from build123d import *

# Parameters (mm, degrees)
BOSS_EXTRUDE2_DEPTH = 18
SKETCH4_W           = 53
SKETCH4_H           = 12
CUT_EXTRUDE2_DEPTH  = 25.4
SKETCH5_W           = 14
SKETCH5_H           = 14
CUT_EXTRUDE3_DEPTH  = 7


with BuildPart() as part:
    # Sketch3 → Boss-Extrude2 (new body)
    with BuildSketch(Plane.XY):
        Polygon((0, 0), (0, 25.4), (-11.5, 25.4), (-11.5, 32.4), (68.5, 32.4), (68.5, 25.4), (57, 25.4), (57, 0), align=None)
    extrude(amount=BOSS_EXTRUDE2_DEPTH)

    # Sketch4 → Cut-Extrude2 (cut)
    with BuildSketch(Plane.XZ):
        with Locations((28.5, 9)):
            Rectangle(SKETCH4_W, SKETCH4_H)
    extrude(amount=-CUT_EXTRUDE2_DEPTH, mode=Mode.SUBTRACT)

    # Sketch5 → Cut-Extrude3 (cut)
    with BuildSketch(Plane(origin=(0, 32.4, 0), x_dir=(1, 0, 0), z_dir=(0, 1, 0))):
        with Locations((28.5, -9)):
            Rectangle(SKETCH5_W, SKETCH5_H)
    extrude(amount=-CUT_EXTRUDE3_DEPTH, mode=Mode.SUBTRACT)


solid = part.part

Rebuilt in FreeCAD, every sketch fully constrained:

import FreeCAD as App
import Part
import Sketcher
from FreeCAD import Vector

doc = App.newDocument("Part")
body = doc.addObject("PartDesign::Body", "Body")

sketch1 = body.newObject("Sketcher::SketchObject", "Sketch")
sketch1.AttachmentSupport = (doc.getObject("XY_Plane"), [""])
sketch1.MapMode = "FlatFace"
sketch1.addGeometry([
    Part.LineSegment(Vector(0, 25, 0), Vector(0, 0, 0)),
    Part.LineSegment(Vector(0, 0, 0), Vector(57, 0, 0)),
    Part.LineSegment(Vector(57, 0, 0), Vector(57, 25, 0)),
    Part.LineSegment(Vector(57, 25, 0), Vector(68, 25, 0)),
    Part.LineSegment(Vector(68, 25, 0), Vector(68, 32, 0)),
    Part.LineSegment(Vector(68, 32, 0), Vector(-12, 32, 0)),
    Part.LineSegment(Vector(-12, 32, 0), Vector(-12, 25, 0)),
    Part.LineSegment(Vector(-12, 25, 0), Vector(0, 25, 0)),
], False)
sketch1.addConstraint([
    Sketcher.Constraint("Coincident", 0, 2, 1, 1),
    Sketcher.Constraint("Coincident", 1, 2, 2, 1),
    Sketcher.Constraint("Coincident", 2, 2, 3, 1),
    Sketcher.Constraint("Coincident", 3, 2, 4, 1),
    Sketcher.Constraint("Coincident", 4, 2, 5, 1),
    Sketcher.Constraint("Coincident", 5, 2, 6, 1),
    Sketcher.Constraint("Coincident", 6, 2, 7, 1),
    Sketcher.Constraint("Coincident", 7, 2, 0, 1),
    Sketcher.Constraint("Vertical", 0),
    Sketcher.Constraint("Horizontal", 1),
    Sketcher.Constraint("Vertical", 2),
    Sketcher.Constraint("Horizontal", 3),
    Sketcher.Constraint("Vertical", 4),
    Sketcher.Constraint("Horizontal", 5),
    Sketcher.Constraint("Vertical", 6),
    Sketcher.Constraint("Horizontal", 7),
    Sketcher.Constraint("Coincident", 0, 2, -1, 1),
    Sketcher.Constraint("Horizontal", 3, 2, 6, 2),
    Sketcher.Constraint("Equal", 3, 7),
    Sketcher.Constraint("DistanceX", 1, 1, 1, 2, 57.0),
    Sketcher.Constraint("DistanceX", 5, 2, 5, 1, 80.0),
    Sketcher.Constraint("DistanceY", 4, 1, 4, 2, 7.0),
    Sketcher.Constraint("DistanceY", 0, 2, 0, 1, 25.4),
])
pad1 = body.newObject("PartDesign::Pad", "Pad")
pad1.Profile = sketch1
pad1.Length = 18

sketch2 = body.newObject("Sketcher::SketchObject", "Sketch001")
sketch2.AttachmentSupport = (doc.getObject("XZ_Plane"), [""])
sketch2.MapMode = "FlatFace"
sketch2.addGeometry([
    Part.LineSegment(Vector(2, 15, 0), Vector(2, 3, 0)),
    Part.LineSegment(Vector(2, 3, 0), Vector(55, 3, 0)),
    Part.LineSegment(Vector(55, 3, 0), Vector(55, 15, 0)),
    Part.LineSegment(Vector(55, 15, 0), Vector(2, 15, 0)),
], False)
sketch2.addConstraint([
    Sketcher.Constraint("Coincident", 0, 2, 1, 1),
    Sketcher.Constraint("Coincident", 1, 2, 2, 1),
    Sketcher.Constraint("Coincident", 2, 2, 3, 1),
    Sketcher.Constraint("Coincident", 3, 2, 0, 1),
    Sketcher.Constraint("Vertical", 0),
    Sketcher.Constraint("Horizontal", 1),
    Sketcher.Constraint("Vertical", 2),
    Sketcher.Constraint("Horizontal", 3),
    Sketcher.Constraint("DistanceX", 1, 1, 1, 2, 53.0),
    Sketcher.Constraint("DistanceY", 0, 2, 0, 1, 12.0),
    Sketcher.Constraint("DistanceX", -1, 1, 0, 2, 2.0),
    Sketcher.Constraint("DistanceY", -1, 1, 0, 2, 3.0),
])
pocket1 = body.newObject("PartDesign::Pocket", "Pocket")
pocket1.Profile = sketch2
pocket1.Length = 25.4

sketch3 = body.newObject("Sketcher::SketchObject", "Sketch002")
sketch3.AttachmentSupport = (doc.getObject("XZ_Plane"), [""])
sketch3.MapMode = "FlatFace"
sketch3.AttachmentOffset = App.Placement(Vector(0, 0, -32.4), App.Rotation())
sketch3.addGeometry([
    Part.LineSegment(Vector(22, 2, 0), Vector(22, 16, 0)),
    Part.LineSegment(Vector(22, 16, 0), Vector(36, 16, 0)),
    Part.LineSegment(Vector(36, 16, 0), Vector(36, 2, 0)),
    Part.LineSegment(Vector(36, 2, 0), Vector(22, 2, 0)),
], False)
sketch3.addConstraint([
    Sketcher.Constraint("Coincident", 0, 2, 1, 1),
    Sketcher.Constraint("Coincident", 1, 2, 2, 1),
    Sketcher.Constraint("Coincident", 2, 2, 3, 1),
    Sketcher.Constraint("Coincident", 3, 2, 0, 1),
    Sketcher.Constraint("Vertical", 0),
    Sketcher.Constraint("Horizontal", 1),
    Sketcher.Constraint("Vertical", 2),
    Sketcher.Constraint("Horizontal", 3),
    Sketcher.Constraint("Equal", 3, 0),
    Sketcher.Constraint("DistanceX", 1, 1, 1, 2, 14.0),
    Sketcher.Constraint("DistanceY", -1, 1, 0, 2, 16.0),
    Sketcher.Constraint("DistanceX", -1, 1, 0, 2, 21.5),
])
pocket2 = body.newObject("PartDesign::Pocket", "Pocket001")
pocket2.Profile = sketch3
pocket2.Length = 7
pocket2.Reversed = True

doc.recompute()
